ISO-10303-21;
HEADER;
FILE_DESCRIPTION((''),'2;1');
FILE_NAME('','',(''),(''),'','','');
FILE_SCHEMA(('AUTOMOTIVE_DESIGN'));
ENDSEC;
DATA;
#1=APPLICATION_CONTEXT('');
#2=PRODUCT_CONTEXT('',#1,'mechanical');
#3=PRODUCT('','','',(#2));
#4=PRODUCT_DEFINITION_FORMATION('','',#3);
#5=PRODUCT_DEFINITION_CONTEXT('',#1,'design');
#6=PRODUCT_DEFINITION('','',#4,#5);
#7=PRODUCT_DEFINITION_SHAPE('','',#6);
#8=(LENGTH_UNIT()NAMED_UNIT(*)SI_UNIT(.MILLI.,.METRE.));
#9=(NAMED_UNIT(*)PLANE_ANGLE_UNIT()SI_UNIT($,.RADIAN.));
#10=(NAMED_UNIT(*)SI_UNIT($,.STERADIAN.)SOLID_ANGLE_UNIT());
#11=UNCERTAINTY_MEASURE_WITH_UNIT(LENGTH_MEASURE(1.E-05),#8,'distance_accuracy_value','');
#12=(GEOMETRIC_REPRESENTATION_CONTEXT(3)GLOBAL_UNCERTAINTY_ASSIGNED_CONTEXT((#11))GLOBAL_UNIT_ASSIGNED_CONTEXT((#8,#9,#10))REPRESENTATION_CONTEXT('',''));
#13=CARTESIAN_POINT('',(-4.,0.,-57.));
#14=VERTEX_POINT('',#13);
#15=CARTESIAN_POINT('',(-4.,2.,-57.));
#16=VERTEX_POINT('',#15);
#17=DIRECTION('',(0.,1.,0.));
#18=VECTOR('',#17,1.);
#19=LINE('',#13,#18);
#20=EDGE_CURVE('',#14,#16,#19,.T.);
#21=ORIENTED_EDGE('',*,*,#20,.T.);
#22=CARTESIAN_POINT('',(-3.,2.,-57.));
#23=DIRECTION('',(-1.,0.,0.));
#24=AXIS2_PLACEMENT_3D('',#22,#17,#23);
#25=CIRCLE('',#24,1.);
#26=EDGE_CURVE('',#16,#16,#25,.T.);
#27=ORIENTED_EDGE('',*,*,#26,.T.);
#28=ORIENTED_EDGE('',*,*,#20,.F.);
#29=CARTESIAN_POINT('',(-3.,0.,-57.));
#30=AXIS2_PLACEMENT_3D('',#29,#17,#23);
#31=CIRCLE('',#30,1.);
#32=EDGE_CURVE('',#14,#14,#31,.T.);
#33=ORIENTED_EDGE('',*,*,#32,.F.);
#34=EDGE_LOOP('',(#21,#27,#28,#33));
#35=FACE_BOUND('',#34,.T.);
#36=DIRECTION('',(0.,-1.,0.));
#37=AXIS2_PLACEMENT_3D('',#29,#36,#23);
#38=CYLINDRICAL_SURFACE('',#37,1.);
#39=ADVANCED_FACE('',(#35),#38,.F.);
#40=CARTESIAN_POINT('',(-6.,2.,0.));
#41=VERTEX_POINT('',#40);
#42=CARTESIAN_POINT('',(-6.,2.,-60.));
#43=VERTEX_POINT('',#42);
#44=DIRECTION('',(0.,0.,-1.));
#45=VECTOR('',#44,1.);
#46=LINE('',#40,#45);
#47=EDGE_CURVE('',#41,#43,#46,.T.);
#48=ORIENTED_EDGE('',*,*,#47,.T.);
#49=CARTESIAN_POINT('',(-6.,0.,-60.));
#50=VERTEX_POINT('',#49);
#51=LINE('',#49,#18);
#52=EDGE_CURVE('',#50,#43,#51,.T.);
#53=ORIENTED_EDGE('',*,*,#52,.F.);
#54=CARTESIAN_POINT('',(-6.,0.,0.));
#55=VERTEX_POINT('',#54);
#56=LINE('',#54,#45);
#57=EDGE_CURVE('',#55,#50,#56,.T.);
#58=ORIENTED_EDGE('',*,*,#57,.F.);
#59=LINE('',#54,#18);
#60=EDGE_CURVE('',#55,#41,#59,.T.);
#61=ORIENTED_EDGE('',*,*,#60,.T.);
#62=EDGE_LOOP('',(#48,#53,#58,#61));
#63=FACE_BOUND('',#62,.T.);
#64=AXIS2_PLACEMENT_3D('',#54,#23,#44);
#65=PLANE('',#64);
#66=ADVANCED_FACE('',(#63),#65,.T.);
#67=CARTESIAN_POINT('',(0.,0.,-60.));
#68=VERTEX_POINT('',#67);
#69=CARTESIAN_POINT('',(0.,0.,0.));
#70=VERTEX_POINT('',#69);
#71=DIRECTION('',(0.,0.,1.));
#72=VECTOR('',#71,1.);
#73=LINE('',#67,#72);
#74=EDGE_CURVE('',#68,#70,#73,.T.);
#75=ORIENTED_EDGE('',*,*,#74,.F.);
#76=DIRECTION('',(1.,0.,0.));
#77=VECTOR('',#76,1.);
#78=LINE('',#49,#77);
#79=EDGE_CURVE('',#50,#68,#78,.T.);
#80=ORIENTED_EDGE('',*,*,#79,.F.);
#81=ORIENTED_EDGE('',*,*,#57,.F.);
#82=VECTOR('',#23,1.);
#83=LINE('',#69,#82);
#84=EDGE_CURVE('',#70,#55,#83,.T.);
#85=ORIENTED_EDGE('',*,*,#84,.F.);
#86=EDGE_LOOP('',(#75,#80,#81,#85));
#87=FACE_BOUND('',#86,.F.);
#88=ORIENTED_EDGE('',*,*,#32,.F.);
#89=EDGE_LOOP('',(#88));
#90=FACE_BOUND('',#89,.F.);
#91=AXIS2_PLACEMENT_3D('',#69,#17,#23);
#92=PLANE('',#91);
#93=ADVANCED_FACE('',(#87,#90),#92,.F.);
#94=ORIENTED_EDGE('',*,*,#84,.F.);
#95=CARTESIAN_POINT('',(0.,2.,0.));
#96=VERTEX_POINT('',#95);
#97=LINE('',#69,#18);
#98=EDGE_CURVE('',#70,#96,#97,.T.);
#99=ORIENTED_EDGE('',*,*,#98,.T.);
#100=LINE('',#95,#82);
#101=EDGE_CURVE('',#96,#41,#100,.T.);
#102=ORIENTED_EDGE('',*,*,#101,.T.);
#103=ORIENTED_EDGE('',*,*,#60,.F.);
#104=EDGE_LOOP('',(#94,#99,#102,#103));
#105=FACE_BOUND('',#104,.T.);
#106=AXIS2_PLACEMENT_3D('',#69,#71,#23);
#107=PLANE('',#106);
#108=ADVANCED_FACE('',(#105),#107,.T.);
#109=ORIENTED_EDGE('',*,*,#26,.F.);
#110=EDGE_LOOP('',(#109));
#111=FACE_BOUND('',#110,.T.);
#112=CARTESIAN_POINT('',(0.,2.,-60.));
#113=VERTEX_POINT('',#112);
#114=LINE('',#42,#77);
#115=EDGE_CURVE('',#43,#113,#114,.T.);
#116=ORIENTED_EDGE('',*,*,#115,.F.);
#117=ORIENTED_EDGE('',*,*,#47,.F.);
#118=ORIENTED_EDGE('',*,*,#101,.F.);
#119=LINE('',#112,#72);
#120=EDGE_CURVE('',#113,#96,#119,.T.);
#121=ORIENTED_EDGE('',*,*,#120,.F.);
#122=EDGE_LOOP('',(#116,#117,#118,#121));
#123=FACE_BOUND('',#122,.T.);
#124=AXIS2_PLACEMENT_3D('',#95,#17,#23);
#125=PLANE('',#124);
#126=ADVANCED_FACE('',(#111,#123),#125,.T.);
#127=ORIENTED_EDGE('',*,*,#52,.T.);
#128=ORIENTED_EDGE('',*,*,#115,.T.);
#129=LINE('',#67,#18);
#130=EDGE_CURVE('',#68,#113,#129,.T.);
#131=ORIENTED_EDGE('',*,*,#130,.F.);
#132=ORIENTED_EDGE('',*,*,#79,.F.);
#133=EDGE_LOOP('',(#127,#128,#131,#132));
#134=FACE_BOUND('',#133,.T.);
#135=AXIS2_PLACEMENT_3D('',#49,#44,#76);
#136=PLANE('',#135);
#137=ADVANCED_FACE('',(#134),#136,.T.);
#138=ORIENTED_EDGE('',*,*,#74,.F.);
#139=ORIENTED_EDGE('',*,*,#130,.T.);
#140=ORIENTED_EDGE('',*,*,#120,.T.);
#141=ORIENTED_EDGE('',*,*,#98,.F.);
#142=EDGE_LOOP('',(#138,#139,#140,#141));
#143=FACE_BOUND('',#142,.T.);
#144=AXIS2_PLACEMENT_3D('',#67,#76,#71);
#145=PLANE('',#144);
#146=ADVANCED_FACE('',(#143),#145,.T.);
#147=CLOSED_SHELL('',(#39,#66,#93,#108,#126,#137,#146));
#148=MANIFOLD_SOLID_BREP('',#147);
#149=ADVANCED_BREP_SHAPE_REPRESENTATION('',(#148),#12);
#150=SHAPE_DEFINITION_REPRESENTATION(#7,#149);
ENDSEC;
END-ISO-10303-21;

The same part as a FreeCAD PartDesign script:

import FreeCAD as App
import Part
import Sketcher
Q = App.Units.Quantity

doc = App.newDocument("Part")
body = doc.addObject("PartDesign::Body", "Body")

# Sketch on XZ plane
sketch1 = doc.addObject("Sketcher::SketchObject", "Sketch")
body.addObject(sketch1)
sketch1.AttachmentSupport = (doc.XZ_Plane, [""])
sketch1.MapMode = "FlatFace"
sketch1.addGeometry([
    Part.LineSegment(App.Vector(-6, 0, 0), App.Vector(0, 0, 0)),  # 0
    Part.LineSegment(App.Vector(0, 0, 0), App.Vector(0, -60, 0)),  # 1
    Part.LineSegment(App.Vector(0, -60, 0), App.Vector(-6, -60, 0)),  # 2
    Part.LineSegment(App.Vector(-6, -60, 0), App.Vector(-6, 0, 0)),  # 3
    Part.Circle(App.Vector(-3, -57, 0), App.Vector(0, 0, 1), 1),  # 4
], False)
sketch1.addConstraint([
    Sketcher.Constraint("Coincident", 0, 2, 1, 1),
    Sketcher.Constraint("Coincident", 1, 2, 2, 1),
    Sketcher.Constraint("Coincident", 2, 2, 3, 1),
    Sketcher.Constraint("Coincident", 3, 2, 0, 1),
    Sketcher.Constraint("Horizontal", 0),
    Sketcher.Constraint("Vertical", 1),
    Sketcher.Constraint("Horizontal", 2),
    Sketcher.Constraint("Vertical", 3),
    Sketcher.Constraint("Coincident", 0, 2, -1, 1),
    Sketcher.Constraint("Diameter", 4, Q("2 mm")),
    Sketcher.Constraint("DistanceX", 0, 1, 0, 2, Q("6 mm")),
    Sketcher.Constraint("DistanceY", 1, 2, 1, 1, Q("60 mm")),
    Sketcher.Constraint("DistanceX", 4, 3, -1, 1, Q("3 mm")),
    Sketcher.Constraint("DistanceY", 1, 2, 4, 3, Q("3 mm")),
])
pad1 = doc.addObject("PartDesign::Pad", "Pad")
body.addObject(pad1)
pad1.Profile = sketch1
pad1.Length = 2
pad1.Reversed = True

doc.recompute()
